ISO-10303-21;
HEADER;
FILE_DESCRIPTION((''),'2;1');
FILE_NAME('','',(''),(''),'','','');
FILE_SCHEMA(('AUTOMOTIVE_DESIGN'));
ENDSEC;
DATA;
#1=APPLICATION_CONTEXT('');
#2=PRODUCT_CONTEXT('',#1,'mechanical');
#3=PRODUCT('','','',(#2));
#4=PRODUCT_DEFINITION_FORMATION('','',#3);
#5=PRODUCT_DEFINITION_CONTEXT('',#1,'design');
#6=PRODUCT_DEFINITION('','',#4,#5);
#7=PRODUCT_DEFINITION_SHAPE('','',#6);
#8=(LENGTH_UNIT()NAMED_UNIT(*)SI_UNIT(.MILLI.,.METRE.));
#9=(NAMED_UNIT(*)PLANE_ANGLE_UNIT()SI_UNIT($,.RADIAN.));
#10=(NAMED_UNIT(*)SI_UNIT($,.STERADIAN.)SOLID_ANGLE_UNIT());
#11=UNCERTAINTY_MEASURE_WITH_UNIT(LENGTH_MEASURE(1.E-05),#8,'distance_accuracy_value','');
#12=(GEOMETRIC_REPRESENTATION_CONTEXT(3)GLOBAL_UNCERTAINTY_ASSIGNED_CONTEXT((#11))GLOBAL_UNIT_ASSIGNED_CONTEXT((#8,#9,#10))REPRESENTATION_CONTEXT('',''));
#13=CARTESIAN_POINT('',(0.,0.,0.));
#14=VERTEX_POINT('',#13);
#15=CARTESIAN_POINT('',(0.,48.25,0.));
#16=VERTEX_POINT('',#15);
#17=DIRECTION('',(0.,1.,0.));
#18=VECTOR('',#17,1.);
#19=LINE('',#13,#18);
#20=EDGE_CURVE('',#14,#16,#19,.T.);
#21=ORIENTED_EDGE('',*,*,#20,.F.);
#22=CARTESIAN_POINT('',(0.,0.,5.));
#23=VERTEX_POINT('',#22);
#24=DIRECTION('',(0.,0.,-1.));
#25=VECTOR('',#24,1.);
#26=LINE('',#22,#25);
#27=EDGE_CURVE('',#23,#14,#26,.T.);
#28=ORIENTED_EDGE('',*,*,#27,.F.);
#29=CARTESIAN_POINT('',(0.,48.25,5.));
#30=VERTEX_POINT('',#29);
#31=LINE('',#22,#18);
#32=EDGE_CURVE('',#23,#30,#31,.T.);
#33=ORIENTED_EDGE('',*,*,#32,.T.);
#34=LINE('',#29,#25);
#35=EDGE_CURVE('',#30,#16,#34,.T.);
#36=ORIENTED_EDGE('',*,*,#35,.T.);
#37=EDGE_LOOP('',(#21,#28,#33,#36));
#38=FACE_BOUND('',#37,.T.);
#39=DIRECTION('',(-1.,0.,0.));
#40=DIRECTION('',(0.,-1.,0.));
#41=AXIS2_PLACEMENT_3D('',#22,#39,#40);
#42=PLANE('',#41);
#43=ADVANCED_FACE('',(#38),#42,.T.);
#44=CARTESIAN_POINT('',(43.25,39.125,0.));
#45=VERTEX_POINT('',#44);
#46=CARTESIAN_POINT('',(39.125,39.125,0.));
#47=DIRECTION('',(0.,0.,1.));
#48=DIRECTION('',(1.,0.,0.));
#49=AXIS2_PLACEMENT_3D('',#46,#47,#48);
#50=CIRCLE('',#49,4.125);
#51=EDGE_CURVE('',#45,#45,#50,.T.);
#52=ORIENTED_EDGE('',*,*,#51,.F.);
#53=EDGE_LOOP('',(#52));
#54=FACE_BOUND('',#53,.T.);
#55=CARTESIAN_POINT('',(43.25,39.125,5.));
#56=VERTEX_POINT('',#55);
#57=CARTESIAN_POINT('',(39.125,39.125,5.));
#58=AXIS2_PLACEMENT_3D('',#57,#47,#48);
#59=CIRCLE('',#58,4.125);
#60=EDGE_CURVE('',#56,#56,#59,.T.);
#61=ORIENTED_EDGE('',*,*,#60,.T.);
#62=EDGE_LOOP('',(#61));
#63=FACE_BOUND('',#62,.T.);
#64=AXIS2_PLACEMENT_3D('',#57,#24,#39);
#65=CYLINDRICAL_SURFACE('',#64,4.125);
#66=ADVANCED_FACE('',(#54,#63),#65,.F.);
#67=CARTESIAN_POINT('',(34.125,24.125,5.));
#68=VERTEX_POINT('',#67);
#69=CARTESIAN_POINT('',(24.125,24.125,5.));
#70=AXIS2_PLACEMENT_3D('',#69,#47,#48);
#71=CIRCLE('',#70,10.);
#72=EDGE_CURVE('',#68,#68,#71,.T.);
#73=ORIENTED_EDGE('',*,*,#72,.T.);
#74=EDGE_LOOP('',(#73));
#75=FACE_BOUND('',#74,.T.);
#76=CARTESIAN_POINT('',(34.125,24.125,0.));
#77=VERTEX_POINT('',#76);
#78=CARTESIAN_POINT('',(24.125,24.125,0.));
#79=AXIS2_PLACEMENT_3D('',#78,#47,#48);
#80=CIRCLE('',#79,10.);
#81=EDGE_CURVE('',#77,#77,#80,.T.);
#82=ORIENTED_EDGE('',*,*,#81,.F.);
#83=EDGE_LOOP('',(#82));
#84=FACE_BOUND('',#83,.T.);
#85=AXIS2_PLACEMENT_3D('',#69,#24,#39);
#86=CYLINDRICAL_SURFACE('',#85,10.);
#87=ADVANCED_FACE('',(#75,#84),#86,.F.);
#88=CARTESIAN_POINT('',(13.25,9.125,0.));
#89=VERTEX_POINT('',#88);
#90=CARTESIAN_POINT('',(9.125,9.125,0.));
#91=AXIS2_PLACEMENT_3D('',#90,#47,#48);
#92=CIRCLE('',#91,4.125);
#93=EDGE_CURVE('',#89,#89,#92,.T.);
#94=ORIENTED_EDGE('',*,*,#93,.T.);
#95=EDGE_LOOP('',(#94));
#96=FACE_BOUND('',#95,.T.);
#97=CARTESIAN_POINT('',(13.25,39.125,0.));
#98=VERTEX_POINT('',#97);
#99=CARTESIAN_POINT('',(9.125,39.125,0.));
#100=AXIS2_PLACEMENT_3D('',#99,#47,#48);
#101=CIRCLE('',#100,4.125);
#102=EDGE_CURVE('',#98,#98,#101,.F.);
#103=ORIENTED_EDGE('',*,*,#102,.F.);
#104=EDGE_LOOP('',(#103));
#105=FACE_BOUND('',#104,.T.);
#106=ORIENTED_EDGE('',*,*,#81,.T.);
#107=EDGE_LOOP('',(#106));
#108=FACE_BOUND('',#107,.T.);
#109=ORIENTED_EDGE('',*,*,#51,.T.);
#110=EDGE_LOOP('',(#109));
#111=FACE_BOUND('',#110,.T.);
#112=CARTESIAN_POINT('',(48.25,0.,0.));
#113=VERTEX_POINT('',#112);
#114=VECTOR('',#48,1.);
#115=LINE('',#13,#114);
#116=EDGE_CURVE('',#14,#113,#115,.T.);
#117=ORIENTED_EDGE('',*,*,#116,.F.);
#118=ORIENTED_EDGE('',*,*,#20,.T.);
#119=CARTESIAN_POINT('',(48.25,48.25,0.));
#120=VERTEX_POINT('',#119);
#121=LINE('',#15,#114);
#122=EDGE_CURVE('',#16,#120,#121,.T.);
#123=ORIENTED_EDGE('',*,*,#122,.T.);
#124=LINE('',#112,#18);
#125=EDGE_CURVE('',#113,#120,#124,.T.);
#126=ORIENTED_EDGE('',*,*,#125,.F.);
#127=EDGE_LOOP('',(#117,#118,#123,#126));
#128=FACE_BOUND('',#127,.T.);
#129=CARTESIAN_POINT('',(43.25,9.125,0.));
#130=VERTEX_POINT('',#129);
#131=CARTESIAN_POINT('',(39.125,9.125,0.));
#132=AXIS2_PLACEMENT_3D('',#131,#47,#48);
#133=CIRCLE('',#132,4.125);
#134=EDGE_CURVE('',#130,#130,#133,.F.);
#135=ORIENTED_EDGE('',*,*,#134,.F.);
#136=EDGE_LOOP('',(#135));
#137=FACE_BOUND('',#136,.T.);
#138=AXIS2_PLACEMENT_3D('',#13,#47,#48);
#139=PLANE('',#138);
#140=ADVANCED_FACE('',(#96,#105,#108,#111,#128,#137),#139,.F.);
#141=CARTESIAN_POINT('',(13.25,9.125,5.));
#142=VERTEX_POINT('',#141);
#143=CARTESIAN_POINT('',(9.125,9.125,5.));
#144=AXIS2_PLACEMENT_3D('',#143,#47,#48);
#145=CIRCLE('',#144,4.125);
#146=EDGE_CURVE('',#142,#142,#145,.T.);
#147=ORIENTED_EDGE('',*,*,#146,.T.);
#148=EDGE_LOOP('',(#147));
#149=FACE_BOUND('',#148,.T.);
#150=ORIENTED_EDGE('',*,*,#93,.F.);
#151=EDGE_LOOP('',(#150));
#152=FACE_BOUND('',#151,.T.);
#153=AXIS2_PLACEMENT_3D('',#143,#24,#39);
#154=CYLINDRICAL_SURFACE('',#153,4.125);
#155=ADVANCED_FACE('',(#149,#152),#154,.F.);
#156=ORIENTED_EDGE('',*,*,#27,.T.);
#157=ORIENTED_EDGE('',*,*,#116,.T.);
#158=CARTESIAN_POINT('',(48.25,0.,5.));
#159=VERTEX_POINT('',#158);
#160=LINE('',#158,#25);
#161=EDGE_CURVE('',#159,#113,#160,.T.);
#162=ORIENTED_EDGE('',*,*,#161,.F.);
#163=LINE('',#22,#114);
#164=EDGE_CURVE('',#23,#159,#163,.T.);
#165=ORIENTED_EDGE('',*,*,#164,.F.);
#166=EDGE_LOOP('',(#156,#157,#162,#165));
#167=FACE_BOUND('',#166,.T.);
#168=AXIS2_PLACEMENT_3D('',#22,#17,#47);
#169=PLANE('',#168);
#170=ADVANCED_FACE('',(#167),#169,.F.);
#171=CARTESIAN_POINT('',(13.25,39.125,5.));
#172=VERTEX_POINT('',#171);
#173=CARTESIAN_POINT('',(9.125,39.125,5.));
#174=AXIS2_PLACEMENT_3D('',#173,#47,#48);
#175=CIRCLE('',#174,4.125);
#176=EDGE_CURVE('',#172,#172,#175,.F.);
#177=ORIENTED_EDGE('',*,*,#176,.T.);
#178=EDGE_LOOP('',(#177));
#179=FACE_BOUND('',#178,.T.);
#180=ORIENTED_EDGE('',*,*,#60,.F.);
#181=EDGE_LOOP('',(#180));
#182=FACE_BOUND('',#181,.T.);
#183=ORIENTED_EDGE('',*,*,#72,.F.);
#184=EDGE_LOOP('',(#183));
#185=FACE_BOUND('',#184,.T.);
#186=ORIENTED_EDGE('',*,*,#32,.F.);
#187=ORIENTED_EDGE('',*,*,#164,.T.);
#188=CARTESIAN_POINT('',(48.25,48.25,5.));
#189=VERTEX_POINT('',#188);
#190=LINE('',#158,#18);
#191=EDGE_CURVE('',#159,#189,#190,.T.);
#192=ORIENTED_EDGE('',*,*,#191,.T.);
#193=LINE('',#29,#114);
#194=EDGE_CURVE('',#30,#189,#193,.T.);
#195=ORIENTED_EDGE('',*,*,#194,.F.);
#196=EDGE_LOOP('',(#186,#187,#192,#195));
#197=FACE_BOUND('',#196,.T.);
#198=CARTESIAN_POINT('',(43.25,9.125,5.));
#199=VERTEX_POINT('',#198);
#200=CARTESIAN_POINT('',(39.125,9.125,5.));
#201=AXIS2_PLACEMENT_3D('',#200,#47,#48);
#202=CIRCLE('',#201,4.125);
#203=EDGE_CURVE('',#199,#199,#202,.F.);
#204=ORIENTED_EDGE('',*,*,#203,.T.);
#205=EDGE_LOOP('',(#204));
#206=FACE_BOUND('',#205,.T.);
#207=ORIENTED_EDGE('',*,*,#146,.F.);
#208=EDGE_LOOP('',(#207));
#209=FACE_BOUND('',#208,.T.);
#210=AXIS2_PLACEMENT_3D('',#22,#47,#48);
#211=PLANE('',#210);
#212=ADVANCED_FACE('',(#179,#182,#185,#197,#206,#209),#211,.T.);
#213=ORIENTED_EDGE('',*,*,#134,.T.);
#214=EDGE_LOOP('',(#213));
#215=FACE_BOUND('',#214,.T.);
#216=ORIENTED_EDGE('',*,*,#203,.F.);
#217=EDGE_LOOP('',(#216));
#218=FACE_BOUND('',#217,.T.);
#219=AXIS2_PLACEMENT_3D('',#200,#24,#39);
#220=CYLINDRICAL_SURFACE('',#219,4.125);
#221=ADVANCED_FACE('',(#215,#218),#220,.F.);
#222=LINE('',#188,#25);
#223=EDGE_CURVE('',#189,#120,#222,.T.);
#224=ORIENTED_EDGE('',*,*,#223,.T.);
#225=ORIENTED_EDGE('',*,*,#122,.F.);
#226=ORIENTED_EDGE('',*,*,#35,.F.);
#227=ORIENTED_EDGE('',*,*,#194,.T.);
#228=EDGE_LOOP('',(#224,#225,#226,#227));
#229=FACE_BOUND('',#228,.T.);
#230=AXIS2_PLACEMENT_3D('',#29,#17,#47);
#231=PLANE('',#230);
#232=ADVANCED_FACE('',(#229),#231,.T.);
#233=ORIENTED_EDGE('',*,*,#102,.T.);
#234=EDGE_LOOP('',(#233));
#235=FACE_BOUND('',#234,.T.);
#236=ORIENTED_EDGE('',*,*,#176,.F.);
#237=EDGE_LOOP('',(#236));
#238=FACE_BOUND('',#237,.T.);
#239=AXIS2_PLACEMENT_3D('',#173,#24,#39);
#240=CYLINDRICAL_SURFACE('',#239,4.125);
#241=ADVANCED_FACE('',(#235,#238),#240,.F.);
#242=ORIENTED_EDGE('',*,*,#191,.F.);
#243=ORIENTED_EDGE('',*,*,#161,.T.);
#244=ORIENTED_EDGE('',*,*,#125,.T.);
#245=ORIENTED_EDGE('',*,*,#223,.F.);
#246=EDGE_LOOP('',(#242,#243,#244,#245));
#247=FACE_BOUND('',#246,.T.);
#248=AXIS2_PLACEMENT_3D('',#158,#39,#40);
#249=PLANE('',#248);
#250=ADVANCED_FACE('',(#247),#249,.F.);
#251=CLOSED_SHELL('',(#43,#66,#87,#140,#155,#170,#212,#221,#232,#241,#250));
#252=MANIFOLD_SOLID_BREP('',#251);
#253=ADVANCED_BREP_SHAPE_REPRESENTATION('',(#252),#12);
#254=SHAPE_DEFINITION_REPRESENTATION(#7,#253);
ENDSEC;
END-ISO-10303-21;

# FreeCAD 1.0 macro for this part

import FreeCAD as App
import Part
import Sketcher

V = App.Vector


def add_polygon(sketch, points):
    """Adds a closed chain of lines whose ends are joined by coincident constraints."""
    first, n = sketch.GeometryCount, len(points)
    for a, b in zip(points, points[1:] + points[:1]):
        sketch.addGeometry(Part.LineSegment(App.Vector(*a, 0), App.Vector(*b, 0)), False)
    for i in range(n):
        sketch.addConstraint(Sketcher.Constraint("Coincident", first + i, 2, first + (i + 1) % n, 1))

doc = App.newDocument("Part")
body = doc.addObject("PartDesign::Body", "Body")

sketch1 = body.newObject("Sketcher::SketchObject", "Sketch")
sketch1.AttachmentSupport = (doc.getObject("XY_Plane"), [""])
sketch1.MapMode = "FlatFace"
add_polygon(sketch1, [(0, 48.2), (0, 0), (48.2, 0), (48.2, 48.2)])
sketch1.addGeometry(Part.Circle(V(24.1, 24.1, 0), V(0, 0, 1), 10), False)
sketch1.addGeometry(Part.Circle(V(9.1, 9.1, 0), V(0, 0, 1), 4.1), False)
sketch1.addGeometry(Part.Circle(V(39.1, 9.1, 0), V(0, 0, 1), 4.1), False)
sketch1.addGeometry(Part.Circle(V(9.1, 39.1, 0), V(0, 0, 1), 4.1), False)
sketch1.addGeometry(Part.Circle(V(39.1, 39.1, 0), V(0, 0, 1), 4.1), False)
sketch1.addConstraint([
    Sketcher.Constraint("Vertical", 0),
    Sketcher.Constraint("Horizontal", 1),
    Sketcher.Constraint("Vertical", 2),
    Sketcher.Constraint("Horizontal", 3),
    Sketcher.Constraint("Coincident", 0, 2, -1, 1),
    Sketcher.Constraint("Equal", 5, 6),
    Sketcher.Constraint("Equal", 6, 7),
    Sketcher.Constraint("Equal", 7, 8),
    Sketcher.Constraint("Horizontal", 5, 3, 6, 3),
    Sketcher.Constraint("Horizontal", 7, 3, 8, 3),
    Sketcher.Constraint("Vertical", 5, 3, 7, 3),
    Sketcher.Constraint("Vertical", 6, 3, 8, 3),
    Sketcher.Constraint("Equal", 3, 0),
    Sketcher.Constraint("Diameter", 4, 20.0),
    Sketcher.Constraint("Diameter", 5, 8.25),
    Sketcher.Constraint("DistanceX", 5, 3, 4, 3, 15.0),
    Sketcher.Constraint("DistanceY", 5, 3, 4, 3, 15.0),
    Sketcher.Constraint("DistanceX", 4, 3, 6, 3, 15.0),
    Sketcher.Constraint("DistanceY", 4, 3, 7, 3, 15.0),
    Sketcher.Constraint("DistanceX", 1, 1, 1, 2, 48.25),
    Sketcher.Constraint("DistanceX", -1, 1, 4, 3, 24.125),
    Sketcher.Constraint("DistanceY", -1, 1, 4, 3, 24.125),
])
pad1 = body.newObject("PartDesign::Pad", "Pad")
pad1.Profile = sketch1
pad1.Length = 5

doc.recompute()
